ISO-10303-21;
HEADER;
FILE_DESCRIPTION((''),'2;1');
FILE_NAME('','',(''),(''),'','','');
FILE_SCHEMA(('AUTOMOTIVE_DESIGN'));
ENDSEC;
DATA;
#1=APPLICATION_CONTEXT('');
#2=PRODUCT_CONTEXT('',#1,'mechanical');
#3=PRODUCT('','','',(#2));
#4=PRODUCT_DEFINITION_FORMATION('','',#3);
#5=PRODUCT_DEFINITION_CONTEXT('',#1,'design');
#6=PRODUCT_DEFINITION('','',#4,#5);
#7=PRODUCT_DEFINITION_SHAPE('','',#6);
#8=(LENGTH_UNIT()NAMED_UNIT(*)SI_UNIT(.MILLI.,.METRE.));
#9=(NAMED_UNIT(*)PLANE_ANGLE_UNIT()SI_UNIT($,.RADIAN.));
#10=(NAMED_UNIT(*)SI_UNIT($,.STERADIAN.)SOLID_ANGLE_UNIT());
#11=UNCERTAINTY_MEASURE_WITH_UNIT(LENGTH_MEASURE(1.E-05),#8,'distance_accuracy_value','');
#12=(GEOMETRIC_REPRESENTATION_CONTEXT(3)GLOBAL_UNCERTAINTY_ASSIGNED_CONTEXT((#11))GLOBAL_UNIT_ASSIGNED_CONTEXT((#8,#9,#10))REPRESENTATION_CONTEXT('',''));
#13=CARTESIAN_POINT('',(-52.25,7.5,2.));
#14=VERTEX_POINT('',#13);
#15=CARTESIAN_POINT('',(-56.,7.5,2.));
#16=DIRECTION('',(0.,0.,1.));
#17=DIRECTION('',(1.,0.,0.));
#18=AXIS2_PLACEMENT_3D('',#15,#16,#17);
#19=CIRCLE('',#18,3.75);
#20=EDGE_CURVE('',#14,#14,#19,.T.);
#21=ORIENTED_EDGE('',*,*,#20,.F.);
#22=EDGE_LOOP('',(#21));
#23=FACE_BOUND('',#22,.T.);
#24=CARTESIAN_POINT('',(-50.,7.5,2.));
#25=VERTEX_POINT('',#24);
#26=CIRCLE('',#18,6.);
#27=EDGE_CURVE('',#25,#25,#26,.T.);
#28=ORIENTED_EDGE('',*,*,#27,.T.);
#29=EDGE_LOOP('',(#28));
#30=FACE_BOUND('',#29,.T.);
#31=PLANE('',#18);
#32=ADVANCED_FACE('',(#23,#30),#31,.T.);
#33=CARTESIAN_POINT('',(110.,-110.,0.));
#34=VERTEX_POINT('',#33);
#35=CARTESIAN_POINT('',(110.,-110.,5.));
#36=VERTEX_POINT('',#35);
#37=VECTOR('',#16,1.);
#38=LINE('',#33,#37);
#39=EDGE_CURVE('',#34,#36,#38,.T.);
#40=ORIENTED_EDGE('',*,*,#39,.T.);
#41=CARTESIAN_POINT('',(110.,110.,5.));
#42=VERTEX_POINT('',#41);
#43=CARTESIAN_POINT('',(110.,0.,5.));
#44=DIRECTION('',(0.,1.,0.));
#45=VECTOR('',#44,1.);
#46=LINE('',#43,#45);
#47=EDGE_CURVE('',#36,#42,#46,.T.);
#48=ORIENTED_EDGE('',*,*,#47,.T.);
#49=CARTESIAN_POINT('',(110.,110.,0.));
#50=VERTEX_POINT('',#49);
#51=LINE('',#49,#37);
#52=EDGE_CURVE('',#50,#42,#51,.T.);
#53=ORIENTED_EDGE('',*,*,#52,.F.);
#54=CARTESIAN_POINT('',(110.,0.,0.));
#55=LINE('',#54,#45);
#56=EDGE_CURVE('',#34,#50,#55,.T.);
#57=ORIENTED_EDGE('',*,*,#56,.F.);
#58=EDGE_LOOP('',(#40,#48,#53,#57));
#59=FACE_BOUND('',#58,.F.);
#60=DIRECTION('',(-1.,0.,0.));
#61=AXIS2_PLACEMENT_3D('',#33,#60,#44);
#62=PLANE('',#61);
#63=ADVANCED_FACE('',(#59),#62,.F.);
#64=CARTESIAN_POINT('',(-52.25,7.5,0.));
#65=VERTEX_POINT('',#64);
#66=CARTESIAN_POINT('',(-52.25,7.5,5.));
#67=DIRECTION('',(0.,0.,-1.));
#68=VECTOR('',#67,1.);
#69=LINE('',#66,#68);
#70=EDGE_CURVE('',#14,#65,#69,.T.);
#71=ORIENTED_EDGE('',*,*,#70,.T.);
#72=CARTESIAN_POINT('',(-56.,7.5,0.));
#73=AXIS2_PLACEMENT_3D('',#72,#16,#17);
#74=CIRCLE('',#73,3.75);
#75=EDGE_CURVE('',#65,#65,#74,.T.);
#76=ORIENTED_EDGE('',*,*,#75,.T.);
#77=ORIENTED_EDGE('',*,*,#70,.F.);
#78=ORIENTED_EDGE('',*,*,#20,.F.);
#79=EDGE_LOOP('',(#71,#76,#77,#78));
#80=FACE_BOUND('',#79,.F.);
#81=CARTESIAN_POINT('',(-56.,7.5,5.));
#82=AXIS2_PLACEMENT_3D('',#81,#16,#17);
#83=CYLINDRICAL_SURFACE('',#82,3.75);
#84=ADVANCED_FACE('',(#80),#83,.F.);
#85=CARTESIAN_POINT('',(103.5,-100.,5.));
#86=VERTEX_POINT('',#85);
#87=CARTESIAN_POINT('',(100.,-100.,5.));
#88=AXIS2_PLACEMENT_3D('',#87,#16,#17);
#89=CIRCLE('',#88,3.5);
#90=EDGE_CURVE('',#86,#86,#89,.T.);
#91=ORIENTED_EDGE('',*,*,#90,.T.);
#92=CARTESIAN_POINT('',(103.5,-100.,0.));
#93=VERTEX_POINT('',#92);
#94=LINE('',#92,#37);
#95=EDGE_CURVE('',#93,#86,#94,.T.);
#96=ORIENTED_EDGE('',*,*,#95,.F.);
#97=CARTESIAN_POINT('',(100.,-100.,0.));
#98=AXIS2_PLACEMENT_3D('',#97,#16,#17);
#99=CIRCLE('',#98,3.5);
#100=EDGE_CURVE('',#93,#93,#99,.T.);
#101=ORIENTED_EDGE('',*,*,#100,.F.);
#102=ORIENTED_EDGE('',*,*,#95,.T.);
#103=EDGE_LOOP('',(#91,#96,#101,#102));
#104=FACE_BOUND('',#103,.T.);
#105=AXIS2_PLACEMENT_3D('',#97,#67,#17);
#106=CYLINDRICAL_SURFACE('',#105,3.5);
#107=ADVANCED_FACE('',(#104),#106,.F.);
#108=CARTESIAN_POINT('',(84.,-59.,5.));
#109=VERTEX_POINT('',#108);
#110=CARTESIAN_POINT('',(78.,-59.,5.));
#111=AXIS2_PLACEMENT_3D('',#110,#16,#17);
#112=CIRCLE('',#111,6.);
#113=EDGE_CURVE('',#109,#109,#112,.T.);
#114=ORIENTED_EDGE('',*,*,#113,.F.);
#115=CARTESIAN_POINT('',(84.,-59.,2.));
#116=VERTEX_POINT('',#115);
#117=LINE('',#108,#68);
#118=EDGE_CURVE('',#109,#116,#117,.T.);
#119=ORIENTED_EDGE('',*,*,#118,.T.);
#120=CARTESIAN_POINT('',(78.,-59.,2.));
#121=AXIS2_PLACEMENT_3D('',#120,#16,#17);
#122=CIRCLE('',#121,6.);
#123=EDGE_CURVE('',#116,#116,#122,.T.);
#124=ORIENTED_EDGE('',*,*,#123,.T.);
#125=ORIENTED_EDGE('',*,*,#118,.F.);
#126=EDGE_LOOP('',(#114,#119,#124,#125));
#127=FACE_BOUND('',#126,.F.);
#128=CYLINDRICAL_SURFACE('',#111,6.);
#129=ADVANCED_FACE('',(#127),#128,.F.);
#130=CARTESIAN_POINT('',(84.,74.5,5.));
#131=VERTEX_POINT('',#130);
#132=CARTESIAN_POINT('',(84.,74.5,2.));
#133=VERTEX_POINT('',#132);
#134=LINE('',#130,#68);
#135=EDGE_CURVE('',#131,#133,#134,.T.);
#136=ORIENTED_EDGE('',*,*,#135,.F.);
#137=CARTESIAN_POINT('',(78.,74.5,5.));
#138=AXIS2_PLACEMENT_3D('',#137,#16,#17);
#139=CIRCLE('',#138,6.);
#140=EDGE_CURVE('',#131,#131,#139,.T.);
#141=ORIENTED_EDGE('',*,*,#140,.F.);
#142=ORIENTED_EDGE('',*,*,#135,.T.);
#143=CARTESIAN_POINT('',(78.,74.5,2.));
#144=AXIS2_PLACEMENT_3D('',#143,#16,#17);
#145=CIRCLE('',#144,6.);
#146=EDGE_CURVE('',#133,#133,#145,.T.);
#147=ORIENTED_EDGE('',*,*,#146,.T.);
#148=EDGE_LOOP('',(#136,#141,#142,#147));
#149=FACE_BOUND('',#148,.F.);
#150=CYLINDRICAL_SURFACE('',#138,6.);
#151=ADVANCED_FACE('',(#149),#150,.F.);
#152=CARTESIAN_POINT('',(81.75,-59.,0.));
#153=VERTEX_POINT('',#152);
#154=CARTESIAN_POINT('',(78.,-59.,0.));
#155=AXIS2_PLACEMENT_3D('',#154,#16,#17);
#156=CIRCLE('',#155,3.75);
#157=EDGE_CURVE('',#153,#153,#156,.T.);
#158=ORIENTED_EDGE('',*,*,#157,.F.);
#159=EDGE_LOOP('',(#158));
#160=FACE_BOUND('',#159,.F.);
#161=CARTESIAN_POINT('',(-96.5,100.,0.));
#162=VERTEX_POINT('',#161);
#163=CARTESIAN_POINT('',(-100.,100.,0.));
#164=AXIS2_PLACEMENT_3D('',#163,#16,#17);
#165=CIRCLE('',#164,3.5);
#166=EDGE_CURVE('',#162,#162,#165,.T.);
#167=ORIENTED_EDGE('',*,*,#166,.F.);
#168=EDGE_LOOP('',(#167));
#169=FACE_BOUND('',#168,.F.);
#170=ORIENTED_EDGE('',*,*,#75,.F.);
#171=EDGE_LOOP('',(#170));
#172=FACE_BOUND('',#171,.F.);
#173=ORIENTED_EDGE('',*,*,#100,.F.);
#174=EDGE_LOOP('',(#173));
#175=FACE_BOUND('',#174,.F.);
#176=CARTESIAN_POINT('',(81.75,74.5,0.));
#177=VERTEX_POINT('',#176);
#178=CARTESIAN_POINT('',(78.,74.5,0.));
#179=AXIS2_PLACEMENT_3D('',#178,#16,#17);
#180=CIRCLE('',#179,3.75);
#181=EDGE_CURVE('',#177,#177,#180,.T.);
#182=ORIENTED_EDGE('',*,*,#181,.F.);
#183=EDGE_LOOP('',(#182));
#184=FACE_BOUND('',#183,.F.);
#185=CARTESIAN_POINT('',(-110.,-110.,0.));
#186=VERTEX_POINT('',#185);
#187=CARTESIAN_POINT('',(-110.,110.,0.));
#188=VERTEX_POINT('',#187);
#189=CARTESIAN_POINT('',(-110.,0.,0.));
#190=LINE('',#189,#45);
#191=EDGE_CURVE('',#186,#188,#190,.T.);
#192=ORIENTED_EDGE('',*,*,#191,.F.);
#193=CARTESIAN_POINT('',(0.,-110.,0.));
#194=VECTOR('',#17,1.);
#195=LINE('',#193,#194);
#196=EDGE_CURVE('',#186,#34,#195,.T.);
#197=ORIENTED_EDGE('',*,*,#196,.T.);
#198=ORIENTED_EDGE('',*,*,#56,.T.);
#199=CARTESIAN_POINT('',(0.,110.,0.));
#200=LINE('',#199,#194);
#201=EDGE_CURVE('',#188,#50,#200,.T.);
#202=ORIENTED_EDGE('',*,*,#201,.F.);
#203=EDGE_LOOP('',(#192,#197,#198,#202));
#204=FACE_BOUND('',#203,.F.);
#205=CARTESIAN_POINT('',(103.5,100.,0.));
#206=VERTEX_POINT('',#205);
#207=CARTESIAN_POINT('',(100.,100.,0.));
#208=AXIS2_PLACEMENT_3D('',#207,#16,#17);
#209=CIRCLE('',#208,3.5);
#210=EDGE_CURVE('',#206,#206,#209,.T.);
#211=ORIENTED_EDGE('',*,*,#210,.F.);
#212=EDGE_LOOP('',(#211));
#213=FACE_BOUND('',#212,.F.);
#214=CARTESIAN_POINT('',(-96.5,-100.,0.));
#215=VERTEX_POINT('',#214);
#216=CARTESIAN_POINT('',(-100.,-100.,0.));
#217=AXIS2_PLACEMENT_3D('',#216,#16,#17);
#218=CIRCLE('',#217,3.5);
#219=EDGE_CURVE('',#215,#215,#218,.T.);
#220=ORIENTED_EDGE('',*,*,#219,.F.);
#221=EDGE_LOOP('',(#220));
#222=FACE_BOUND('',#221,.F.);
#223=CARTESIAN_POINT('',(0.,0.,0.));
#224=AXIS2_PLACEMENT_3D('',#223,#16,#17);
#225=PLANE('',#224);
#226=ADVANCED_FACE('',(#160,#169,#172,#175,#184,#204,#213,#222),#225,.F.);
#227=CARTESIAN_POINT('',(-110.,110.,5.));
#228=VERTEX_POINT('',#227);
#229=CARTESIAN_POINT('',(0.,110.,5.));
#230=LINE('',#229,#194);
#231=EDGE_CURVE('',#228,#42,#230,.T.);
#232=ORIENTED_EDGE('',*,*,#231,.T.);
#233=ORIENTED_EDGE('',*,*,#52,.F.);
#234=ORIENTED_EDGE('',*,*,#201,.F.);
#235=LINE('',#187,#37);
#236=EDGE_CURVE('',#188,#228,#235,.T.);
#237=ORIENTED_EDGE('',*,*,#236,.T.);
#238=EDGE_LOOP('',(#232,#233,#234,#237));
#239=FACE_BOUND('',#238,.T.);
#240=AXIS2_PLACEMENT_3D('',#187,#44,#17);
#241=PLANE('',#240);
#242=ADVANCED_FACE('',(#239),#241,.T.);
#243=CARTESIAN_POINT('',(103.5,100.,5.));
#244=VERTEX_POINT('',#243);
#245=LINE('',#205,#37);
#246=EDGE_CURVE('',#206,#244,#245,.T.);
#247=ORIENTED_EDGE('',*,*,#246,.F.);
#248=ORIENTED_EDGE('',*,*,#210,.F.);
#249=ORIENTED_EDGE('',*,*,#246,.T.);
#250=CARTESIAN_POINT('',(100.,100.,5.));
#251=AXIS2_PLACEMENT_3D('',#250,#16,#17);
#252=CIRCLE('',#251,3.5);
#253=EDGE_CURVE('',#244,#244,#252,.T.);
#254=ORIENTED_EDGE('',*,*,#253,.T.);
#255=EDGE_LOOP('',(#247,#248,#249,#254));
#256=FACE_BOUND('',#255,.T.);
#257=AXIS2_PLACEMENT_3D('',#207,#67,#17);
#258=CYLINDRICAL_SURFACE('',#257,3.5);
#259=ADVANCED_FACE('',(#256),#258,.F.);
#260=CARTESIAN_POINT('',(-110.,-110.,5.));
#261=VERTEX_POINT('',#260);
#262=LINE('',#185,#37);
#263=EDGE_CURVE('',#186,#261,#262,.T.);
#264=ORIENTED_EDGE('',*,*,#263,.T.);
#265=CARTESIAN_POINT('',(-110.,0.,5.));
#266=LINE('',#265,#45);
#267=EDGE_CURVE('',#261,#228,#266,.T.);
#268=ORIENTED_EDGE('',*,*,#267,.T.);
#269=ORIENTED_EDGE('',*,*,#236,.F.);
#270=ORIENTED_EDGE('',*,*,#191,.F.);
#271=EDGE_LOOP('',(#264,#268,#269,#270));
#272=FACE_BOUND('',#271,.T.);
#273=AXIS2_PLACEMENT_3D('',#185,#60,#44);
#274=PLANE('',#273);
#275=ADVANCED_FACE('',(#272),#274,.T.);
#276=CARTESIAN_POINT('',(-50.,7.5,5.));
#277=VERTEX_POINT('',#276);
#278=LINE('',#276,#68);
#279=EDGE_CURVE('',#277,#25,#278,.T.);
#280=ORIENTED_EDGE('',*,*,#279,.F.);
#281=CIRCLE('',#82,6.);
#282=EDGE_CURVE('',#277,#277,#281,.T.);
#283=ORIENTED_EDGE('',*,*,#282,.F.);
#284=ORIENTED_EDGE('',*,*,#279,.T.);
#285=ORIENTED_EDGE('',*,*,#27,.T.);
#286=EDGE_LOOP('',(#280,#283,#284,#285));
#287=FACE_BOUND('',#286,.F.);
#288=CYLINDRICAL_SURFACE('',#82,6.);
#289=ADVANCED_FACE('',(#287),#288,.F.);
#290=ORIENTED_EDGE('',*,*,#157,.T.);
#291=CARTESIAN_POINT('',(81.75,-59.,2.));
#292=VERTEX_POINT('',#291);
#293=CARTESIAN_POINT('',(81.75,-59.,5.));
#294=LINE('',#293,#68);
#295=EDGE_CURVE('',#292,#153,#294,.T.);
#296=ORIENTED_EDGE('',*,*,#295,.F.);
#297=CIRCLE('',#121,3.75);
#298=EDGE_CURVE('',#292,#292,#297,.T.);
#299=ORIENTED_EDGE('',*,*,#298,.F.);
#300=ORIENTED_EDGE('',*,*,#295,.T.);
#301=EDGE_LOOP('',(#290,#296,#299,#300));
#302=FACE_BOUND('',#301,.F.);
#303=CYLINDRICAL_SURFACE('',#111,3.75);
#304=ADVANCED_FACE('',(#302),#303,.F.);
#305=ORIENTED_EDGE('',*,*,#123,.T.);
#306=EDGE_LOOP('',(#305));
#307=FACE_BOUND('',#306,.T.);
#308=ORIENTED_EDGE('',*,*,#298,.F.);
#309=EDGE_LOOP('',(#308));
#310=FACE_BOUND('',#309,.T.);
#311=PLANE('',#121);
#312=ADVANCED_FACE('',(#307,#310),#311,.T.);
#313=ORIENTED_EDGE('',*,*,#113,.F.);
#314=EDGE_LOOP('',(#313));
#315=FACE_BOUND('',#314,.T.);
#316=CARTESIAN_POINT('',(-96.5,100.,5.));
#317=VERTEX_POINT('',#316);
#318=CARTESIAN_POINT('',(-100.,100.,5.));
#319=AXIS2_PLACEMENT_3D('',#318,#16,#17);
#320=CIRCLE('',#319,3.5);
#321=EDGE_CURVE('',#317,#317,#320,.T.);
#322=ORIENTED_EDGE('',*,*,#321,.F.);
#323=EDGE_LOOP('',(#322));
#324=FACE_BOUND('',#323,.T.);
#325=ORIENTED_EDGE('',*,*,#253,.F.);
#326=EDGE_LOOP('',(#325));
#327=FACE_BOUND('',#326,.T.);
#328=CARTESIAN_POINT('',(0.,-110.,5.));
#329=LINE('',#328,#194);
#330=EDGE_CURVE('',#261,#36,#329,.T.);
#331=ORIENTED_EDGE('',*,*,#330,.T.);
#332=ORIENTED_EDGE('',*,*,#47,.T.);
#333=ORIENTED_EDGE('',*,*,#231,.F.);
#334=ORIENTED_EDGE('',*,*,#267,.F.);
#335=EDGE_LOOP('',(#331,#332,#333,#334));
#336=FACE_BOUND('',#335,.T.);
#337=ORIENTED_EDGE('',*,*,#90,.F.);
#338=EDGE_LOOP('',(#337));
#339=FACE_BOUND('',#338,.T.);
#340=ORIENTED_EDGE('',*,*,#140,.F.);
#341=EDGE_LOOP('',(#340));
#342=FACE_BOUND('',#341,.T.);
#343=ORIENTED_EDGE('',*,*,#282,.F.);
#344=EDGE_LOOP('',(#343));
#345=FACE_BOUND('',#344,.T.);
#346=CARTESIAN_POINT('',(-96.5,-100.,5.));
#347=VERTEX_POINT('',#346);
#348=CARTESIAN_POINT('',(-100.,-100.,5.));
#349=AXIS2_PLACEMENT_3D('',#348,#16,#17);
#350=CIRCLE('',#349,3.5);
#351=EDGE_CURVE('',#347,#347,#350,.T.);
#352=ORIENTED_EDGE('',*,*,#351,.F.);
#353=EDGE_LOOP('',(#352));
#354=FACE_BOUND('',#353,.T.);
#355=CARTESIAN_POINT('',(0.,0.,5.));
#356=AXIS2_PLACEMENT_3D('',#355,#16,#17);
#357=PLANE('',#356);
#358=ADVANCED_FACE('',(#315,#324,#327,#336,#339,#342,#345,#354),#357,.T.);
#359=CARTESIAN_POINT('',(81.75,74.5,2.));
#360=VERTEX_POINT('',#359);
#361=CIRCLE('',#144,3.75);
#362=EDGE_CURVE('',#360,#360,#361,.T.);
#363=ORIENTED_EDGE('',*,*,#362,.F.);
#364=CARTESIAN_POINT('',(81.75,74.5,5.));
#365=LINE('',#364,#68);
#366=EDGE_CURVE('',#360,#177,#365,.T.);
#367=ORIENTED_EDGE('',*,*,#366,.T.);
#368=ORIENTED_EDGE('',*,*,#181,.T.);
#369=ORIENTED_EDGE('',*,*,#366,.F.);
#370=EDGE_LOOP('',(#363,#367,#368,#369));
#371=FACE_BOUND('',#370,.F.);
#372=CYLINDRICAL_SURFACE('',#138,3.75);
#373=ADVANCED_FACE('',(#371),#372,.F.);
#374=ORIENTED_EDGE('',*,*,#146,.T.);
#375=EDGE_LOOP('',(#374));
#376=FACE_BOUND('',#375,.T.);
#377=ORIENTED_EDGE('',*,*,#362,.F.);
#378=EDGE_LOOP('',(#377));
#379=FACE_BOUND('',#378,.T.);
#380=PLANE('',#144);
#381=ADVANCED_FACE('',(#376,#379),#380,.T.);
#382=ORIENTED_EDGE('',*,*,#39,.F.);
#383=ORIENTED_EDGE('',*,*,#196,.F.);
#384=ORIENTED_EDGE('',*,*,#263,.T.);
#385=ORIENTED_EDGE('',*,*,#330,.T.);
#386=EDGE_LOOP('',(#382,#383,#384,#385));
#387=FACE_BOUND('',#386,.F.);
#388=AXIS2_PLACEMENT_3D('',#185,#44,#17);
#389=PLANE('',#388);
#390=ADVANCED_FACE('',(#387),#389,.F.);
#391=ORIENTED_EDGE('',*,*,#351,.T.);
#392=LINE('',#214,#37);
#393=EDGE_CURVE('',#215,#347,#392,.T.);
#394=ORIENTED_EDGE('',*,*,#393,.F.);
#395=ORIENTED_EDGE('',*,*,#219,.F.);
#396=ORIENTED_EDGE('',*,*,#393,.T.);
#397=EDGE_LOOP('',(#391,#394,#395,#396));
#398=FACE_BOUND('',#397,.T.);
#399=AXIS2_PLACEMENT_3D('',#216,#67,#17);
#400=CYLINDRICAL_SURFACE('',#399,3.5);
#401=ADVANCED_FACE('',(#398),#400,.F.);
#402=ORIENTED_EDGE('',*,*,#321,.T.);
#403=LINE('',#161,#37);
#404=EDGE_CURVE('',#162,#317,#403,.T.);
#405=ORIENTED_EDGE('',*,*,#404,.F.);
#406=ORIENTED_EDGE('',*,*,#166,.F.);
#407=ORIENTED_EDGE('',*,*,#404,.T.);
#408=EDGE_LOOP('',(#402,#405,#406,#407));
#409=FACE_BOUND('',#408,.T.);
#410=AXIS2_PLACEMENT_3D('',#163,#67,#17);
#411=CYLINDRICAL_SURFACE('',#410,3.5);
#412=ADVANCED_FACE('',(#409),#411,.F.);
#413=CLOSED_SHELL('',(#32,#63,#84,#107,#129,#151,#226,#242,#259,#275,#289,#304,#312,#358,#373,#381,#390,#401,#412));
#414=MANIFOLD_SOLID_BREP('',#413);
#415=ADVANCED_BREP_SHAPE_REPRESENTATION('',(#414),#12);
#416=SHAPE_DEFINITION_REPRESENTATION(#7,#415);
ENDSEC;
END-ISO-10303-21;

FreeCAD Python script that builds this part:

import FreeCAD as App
import Part
import Sketcher
Q = App.Units.Quantity

doc = App.newDocument("Part")
body = doc.addObject("PartDesign::Body", "Body")

sketch1 = body.newObject("Sketcher::SketchObject", "Sketch")
sketch1.AttachmentSupport = (doc.getObject("XY_Plane"), [""])
sketch1.MapMode = "FlatFace"
sketch1.addGeometry([
    Part.LineSegment(App.Vector(-110, 110, 0), App.Vector(-110, -110, 0)),
    Part.LineSegment(App.Vector(-110, -110, 0), App.Vector(110, -110, 0)),
    Part.LineSegment(App.Vector(110, -110, 0), App.Vector(110, 110, 0)),
    Part.LineSegment(App.Vector(110, 110, 0), App.Vector(-110, 110, 0)),
    Part.Circle(App.Vector(-100, -100, 0), App.Vector(0, 0, 1), 3.5),
    Part.Circle(App.Vector(100, -100, 0), App.Vector(0, 0, 1), 3.5),
    Part.Circle(App.Vector(-100, 100, 0), App.Vector(0, 0, 1), 3.5),
    Part.Circle(App.Vector(100, 100, 0), App.Vector(0, 0, 1), 3.5),
], False)
sketch1.addConstraint([
    Sketcher.Constraint("Coincident", 0, 2, 1, 1),
    Sketcher.Constraint("Coincident", 1, 2, 2, 1),
    Sketcher.Constraint("Coincident", 2, 2, 3, 1),
    Sketcher.Constraint("Coincident", 3, 2, 0, 1),
    Sketcher.Constraint("Vertical", 0),
    Sketcher.Constraint("Horizontal", 1),
    Sketcher.Constraint("Vertical", 2),
    Sketcher.Constraint("Horizontal", 3),
    Sketcher.Constraint("Equal", 4, 5),
    Sketcher.Constraint("Equal", 5, 6),
    Sketcher.Constraint("Equal", 6, 7),
    Sketcher.Constraint("Symmetric", 5, 3, 6, 3, -1, 1),
    Sketcher.Constraint("Symmetric", 4, 3, 7, 3, -1, 1),
    Sketcher.Constraint("Symmetric", 0, 2, 2, 2, -1, 1),
    Sketcher.Constraint("Symmetric", 4, 3, 5, 3, -2),
    Sketcher.Constraint("Equal", 3, 0),
    Sketcher.Constraint("Diameter", 4, Q("7 mm")),
    Sketcher.Constraint("DistanceX", 1, 1, 1, 2, Q("220 mm")),
    Sketcher.Constraint("DistanceX", 4, 3, -1, 1, Q("100 mm")),
    Sketcher.Constraint("DistanceY", 4, 3, -1, 1, Q("100 mm")),
])
pad1 = body.newObject("PartDesign::Pad", "Pad")
pad1.Profile = sketch1
pad1.Length = 5

sketch2 = body.newObject("Sketcher::SketchObject", "Sketch001")
sketch2.AttachmentSupport = (doc.getObject("XY_Plane"), [""])
sketch2.MapMode = "FlatFace"
sketch2.AttachmentOffset = App.Placement(App.Vector(0, 0, 5), App.Rotation())
sketch2.addGeometry([
    Part.Circle(App.Vector(-56, 7.5, 0), App.Vector(0, 0, 1), 3.75),
    Part.Circle(App.Vector(78, 74.5, 0), App.Vector(0, 0, 1), 3.75),
    Part.Circle(App.Vector(78, -59, 0), App.Vector(0, 0, 1), 3.75),
], False)
sketch2.addConstraint([
    Sketcher.Constraint("Equal", 0, 1),
    Sketcher.Constraint("Equal", 1, 2),
    Sketcher.Constraint("Vertical", 1, 3, 2, 3),
    Sketcher.Constraint("Diameter", 0, Q("7.5 mm")),
    Sketcher.Constraint("DistanceX", 0, 3, -1, 1, Q("56 mm")),
    Sketcher.Constraint("DistanceX", -1, 1, 1, 3, Q("78 mm")),
    Sketcher.Constraint("DistanceY", 2, 3, -1, 1, Q("59 mm")),
    Sketcher.Constraint("DistanceY", 0, 3, 1, 3, Q("67 mm")),
    Sketcher.Constraint("DistanceY", -1, 1, 0, 3, Q("7.5 mm")),
])
pocket1 = body.newObject("PartDesign::Pocket", "Pocket")
pocket1.Profile = sketch2
pocket1.Type = "ThroughAll"

sketch3 = body.newObject("Sketcher::SketchObject", "Sketch002")
sketch3.AttachmentSupport = (doc.getObject("XY_Plane"), [""])
sketch3.MapMode = "FlatFace"
sketch3.AttachmentOffset = App.Placement(App.Vector(0, 0, 5), App.Rotation())
sketch3.addGeometry([
    Part.Circle(App.Vector(-56, 7.5, 0), App.Vector(0, 0, 1), 6),
    Part.Circle(App.Vector(78, 74.5, 0), App.Vector(0, 0, 1), 6),
    Part.Circle(App.Vector(78, -59, 0), App.Vector(0, 0, 1), 6),
], False)
sketch3.addConstraint([
    Sketcher.Constraint("Equal", 0, 1),
    Sketcher.Constraint("Equal", 1, 2),
    Sketcher.Constraint("Vertical", 1, 3, 2, 3),
    Sketcher.Constraint("Diameter", 0, Q("12 mm")),
    Sketcher.Constraint("DistanceX", 0, 3, -1, 1, Q("56 mm")),
    Sketcher.Constraint("DistanceX", -1, 1, 1, 3, Q("78 mm")),
    Sketcher.Constraint("DistanceY", 2, 3, -1, 1, Q("59 mm")),
    Sketcher.Constraint("DistanceY", 0, 3, 1, 3, Q("67 mm")),
    Sketcher.Constraint("DistanceY", -1, 1, 0, 3, Q("7.5 mm")),
])
pocket2 = body.newObject("PartDesign::Pocket", "Pocket001")
pocket2.Profile = sketch3
pocket2.Length = 3

doc.recompute()
